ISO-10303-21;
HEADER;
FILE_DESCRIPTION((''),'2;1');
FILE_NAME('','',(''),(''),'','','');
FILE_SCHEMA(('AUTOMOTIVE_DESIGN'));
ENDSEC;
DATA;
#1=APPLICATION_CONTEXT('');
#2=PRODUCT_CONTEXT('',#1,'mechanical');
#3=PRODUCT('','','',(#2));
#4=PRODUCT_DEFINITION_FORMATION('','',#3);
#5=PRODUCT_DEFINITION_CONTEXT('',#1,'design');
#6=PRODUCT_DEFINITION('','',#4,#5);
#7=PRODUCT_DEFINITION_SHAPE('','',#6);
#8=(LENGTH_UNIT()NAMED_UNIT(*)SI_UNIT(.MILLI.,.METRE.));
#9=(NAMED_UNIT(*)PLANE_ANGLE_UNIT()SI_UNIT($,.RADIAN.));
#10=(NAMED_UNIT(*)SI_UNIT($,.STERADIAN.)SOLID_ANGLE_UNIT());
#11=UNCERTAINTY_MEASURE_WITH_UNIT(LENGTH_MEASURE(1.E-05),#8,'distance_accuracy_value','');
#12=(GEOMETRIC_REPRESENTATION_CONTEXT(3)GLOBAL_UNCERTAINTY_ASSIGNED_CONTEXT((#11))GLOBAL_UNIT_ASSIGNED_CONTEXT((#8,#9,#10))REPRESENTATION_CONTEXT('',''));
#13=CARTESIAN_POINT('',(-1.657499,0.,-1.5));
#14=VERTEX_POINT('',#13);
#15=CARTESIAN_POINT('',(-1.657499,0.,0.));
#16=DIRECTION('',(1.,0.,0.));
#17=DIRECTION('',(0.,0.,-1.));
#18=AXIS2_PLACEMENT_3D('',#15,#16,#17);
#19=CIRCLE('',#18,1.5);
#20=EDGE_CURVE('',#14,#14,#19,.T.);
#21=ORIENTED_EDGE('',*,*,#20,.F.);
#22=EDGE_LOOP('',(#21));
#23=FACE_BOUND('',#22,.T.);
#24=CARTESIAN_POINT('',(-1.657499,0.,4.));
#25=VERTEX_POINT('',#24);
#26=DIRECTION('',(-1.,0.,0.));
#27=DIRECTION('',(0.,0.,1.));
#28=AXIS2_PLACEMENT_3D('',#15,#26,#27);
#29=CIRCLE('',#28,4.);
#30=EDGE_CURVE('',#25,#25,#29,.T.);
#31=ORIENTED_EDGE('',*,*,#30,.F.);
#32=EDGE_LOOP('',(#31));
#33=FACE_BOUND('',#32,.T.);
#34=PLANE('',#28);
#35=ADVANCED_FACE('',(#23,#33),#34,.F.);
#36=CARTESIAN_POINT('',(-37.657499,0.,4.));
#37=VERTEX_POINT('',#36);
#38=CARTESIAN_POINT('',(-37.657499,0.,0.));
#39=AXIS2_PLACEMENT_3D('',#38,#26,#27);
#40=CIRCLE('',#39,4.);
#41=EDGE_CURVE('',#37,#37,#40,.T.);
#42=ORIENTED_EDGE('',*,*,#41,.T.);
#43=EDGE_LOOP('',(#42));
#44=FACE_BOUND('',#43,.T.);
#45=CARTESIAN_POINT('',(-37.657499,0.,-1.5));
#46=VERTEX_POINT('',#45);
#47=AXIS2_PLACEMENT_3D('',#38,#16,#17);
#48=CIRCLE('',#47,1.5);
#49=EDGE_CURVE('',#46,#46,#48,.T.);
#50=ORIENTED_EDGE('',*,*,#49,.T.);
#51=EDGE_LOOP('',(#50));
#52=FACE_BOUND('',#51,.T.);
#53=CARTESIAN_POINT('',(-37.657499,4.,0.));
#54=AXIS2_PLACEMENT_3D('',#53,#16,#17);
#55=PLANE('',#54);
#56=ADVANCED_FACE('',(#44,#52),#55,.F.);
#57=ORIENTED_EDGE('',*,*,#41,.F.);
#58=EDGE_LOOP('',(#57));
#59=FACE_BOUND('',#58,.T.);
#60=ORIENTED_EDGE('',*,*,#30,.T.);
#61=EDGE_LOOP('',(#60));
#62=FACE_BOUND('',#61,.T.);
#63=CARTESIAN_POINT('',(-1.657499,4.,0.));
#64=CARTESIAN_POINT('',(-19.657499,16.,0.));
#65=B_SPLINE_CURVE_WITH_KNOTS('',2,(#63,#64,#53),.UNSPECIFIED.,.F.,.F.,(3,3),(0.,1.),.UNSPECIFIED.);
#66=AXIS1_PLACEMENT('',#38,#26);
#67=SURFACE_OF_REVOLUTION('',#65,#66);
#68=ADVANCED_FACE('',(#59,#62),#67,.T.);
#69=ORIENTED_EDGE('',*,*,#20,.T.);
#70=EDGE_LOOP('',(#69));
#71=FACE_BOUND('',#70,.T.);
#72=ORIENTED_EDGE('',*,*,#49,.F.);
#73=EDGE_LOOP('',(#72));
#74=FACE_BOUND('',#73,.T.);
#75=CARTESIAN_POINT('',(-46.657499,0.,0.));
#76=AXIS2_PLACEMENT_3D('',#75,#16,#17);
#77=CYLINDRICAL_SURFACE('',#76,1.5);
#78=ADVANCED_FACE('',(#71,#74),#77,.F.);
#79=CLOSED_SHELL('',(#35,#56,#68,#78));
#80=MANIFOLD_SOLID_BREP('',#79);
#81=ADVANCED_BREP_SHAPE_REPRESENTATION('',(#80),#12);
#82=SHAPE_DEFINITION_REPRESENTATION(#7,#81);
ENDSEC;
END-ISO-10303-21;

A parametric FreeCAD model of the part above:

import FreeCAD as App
import Part
import Sketcher
from FreeCAD import Vector
Q = App.Units.Quantity

doc = App.newDocument("Part")
params = doc.addObject("Spreadsheet::Sheet", "Params")
for row, (alias, value) in enumerate([
    ("revolution_angle", "360 deg"),
    ("sketch2_diameter", "3 mm"),
    ("pocket1_length", "45 mm"),
], start=1):
    params.set(f"A{row}", alias)
    params.set(f"B{row}", "=" + value)
    params.setAlias(f"B{row}", alias)

body = doc.addObject("PartDesign::Body", "Body")

sketch1 = body.newObject("Sketcher::SketchObject", "Sketch")
sketch1.AttachmentSupport = (doc.getObject("XY_Plane"), [""])
sketch1.MapMode = "FlatFace"
sketch1.addGeometry(Part.LineSegment(Vector(-1.657499, 0, 0), Vector(-1.657499, 4, 0)), False)
sketch1.addGeometry(Part.BSplineCurve([Vector(-1.657499, 4, 0), Vector(-19.657499, 16, 0), Vector(-37.657499, 4, 0)], [3, 3], [0, 1], False, 2, [1, 1, 1], False), False)
sketch1.addGeometry(Part.LineSegment(Vector(-37.657499, 4, 0), Vector(-37.657499, 0, 0)), False)
sketch1.addGeometry(Part.LineSegment(Vector(-37.657499, 0, 0), Vector(-1.657499, 0, 0)), False)
sketch1.addConstraint(Sketcher.Constraint("Block", 1))
sketch1.addConstraint(Sketcher.Constraint("Coincident", 0, 2, 1, 1))
sketch1.addConstraint(Sketcher.Constraint("Coincident", 1, 2, 2, 1))
sketch1.addConstraint(Sketcher.Constraint("Coincident", 2, 2, 3, 1))
sketch1.addConstraint(Sketcher.Constraint("Coincident", 3, 2, 0, 1))
sketch1.addConstraint(Sketcher.Constraint("Vertical", 0))
sketch1.addConstraint(Sketcher.Constraint("Vertical", 2))
sketch1.addConstraint(Sketcher.Constraint("Horizontal", 3))
sketch1.addConstraint(Sketcher.Constraint("PointOnObject", 2, 2, -1))
revolution = body.newObject("PartDesign::Revolution", "Revolution")
revolution.Profile = sketch1
revolution.ReferenceAxis = (sketch1, ["H_Axis"])
revolution.setExpression("Angle", "Params.revolution_angle")

sketch2 = body.newObject("Sketcher::SketchObject", "Sketch001")
sketch2.AttachmentSupport = (doc.getObject("YZ_Plane"), [""])
sketch2.MapMode = "FlatFace"
sketch2.AttachmentOffset = App.Placement(Vector(0, 0, -1.657499), App.Rotation())
sketch2.addGeometry(Part.Circle(Vector(0, 0, 0), Vector(0, 0, 1), 1.5), False)
sketch2.addConstraint(Sketcher.Constraint("Coincident", 0, 3, -1, 1))
sketch2.addConstraint(Sketcher.Constraint("Diameter", 0, Q("3 mm")))
sketch2.setExpression("Constraints[1]", "Params.sketch2_diameter")
pocket1 = body.newObject("PartDesign::Pocket", "Pocket")
pocket1.Profile = sketch2
pocket1.setExpression("Length", "Params.pocket1_length")

doc.recompute()
